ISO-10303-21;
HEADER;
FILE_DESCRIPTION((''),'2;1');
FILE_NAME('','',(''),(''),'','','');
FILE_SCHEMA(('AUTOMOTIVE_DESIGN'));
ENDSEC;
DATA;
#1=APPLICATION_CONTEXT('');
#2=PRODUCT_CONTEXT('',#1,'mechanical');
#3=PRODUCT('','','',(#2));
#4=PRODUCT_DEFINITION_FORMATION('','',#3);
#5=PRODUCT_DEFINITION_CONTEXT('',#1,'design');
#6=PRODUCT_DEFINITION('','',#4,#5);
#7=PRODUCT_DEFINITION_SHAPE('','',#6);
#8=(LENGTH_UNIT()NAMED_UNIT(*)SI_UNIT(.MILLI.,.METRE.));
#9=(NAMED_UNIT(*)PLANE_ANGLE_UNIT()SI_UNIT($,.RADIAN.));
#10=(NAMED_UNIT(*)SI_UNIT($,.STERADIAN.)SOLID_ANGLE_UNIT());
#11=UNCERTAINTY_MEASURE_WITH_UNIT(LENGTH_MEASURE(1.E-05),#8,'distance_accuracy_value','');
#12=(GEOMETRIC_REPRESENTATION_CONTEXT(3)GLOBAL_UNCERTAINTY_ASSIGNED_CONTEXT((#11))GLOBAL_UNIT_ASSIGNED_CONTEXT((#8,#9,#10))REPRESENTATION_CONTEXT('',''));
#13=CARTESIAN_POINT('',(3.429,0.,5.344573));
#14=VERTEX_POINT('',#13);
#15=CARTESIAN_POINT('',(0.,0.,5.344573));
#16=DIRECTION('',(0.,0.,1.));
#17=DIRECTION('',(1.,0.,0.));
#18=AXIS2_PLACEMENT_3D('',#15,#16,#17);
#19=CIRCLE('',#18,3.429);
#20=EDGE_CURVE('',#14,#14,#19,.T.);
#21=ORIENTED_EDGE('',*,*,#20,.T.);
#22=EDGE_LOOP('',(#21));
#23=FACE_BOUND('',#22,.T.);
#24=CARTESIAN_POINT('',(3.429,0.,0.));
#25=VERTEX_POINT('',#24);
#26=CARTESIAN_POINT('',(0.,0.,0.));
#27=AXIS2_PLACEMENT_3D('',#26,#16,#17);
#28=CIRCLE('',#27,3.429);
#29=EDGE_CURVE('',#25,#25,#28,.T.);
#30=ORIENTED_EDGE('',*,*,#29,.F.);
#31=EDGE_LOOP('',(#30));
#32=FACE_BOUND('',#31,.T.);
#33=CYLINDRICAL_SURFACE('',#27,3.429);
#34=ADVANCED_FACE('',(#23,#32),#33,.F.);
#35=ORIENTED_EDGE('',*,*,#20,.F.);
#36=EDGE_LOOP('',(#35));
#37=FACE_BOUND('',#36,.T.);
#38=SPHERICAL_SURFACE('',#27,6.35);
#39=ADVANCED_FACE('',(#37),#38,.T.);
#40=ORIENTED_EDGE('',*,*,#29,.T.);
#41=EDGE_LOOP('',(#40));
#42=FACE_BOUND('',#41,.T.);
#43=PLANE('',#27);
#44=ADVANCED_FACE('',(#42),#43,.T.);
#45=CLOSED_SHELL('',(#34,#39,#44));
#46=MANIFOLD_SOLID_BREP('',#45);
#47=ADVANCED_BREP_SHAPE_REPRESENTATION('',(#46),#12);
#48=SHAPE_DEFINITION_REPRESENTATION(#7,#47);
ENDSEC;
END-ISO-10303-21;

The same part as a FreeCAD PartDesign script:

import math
import FreeCAD as App
import Part
import Sketcher
from FreeCAD import Vector
Q = App.Units.Quantity

doc = App.newDocument("Part")
params = doc.addObject("Spreadsheet::Sheet", "Params")
for row, (alias, value) in enumerate([
    ("sketch1_radius", "0.25 in"),
    ("sketch1_width", "0.135 in"),
    ("revolution_angle", "360 deg"),
], start=1):
    params.set(f"A{row}", alias)
    params.set(f"B{row}", "=" + value)
    params.setAlias(f"B{row}", alias)

body = doc.addObject("PartDesign::Body", "Body")

# Sketch on XZ plane
sketch1 = doc.addObject("Sketcher::SketchObject", "Sketch")
body.addObject(sketch1)
sketch1.AttachmentSupport = (doc.XZ_Plane, [""])
sketch1.MapMode = "FlatFace"
sketch1.addGeometry([
    Part.LineSegment(Vector(0, 0, 0), Vector(3.4, 0, 0)),
    Part.LineSegment(Vector(3.4, 0, 0), Vector(3.4, 5.3, 0)),
    Part.ArcOfCircle(Part.Circle(Vector(0, 0, 0), Vector(0, 0, 1), 6.3), math.radians(-90), math.radians(57)),
    Part.LineSegment(Vector(0, -6.3, 0), Vector(0, 0, 0)),
], False)
sketch1.addConstraint([
    Sketcher.Constraint("Coincident", 0, 2, 1, 1),
    Sketcher.Constraint("Coincident", 1, 2, 2, 2),
    Sketcher.Constraint("Coincident", 2, 1, 3, 1),
    Sketcher.Constraint("Coincident", 3, 2, 0, 1),
    Sketcher.Constraint("Horizontal", 0),
    Sketcher.Constraint("Vertical", 1),
    Sketcher.Constraint("Vertical", 3),
    Sketcher.Constraint("Coincident", 2, 3, -1, 1),
    Sketcher.Constraint("Coincident", 3, 2, -1, 1),
    Sketcher.Constraint("Radius", 2, Q("0.25 in")),
    Sketcher.Constraint("DistanceX", 0, 1, 0, 2, Q("0.135 in")),
])
sketch1.setExpression("Constraints[9]", "Params.sketch1_radius")
sketch1.setExpression("Constraints[10]", "Params.sketch1_width")
revolution = doc.addObject("PartDesign::Revolution", "Revolution")
body.addObject(revolution)
revolution.Profile = sketch1
revolution.ReferenceAxis = (sketch1, ["V_Axis"])
revolution.setExpression("Angle", "Params.revolution_angle")

doc.recompute()
